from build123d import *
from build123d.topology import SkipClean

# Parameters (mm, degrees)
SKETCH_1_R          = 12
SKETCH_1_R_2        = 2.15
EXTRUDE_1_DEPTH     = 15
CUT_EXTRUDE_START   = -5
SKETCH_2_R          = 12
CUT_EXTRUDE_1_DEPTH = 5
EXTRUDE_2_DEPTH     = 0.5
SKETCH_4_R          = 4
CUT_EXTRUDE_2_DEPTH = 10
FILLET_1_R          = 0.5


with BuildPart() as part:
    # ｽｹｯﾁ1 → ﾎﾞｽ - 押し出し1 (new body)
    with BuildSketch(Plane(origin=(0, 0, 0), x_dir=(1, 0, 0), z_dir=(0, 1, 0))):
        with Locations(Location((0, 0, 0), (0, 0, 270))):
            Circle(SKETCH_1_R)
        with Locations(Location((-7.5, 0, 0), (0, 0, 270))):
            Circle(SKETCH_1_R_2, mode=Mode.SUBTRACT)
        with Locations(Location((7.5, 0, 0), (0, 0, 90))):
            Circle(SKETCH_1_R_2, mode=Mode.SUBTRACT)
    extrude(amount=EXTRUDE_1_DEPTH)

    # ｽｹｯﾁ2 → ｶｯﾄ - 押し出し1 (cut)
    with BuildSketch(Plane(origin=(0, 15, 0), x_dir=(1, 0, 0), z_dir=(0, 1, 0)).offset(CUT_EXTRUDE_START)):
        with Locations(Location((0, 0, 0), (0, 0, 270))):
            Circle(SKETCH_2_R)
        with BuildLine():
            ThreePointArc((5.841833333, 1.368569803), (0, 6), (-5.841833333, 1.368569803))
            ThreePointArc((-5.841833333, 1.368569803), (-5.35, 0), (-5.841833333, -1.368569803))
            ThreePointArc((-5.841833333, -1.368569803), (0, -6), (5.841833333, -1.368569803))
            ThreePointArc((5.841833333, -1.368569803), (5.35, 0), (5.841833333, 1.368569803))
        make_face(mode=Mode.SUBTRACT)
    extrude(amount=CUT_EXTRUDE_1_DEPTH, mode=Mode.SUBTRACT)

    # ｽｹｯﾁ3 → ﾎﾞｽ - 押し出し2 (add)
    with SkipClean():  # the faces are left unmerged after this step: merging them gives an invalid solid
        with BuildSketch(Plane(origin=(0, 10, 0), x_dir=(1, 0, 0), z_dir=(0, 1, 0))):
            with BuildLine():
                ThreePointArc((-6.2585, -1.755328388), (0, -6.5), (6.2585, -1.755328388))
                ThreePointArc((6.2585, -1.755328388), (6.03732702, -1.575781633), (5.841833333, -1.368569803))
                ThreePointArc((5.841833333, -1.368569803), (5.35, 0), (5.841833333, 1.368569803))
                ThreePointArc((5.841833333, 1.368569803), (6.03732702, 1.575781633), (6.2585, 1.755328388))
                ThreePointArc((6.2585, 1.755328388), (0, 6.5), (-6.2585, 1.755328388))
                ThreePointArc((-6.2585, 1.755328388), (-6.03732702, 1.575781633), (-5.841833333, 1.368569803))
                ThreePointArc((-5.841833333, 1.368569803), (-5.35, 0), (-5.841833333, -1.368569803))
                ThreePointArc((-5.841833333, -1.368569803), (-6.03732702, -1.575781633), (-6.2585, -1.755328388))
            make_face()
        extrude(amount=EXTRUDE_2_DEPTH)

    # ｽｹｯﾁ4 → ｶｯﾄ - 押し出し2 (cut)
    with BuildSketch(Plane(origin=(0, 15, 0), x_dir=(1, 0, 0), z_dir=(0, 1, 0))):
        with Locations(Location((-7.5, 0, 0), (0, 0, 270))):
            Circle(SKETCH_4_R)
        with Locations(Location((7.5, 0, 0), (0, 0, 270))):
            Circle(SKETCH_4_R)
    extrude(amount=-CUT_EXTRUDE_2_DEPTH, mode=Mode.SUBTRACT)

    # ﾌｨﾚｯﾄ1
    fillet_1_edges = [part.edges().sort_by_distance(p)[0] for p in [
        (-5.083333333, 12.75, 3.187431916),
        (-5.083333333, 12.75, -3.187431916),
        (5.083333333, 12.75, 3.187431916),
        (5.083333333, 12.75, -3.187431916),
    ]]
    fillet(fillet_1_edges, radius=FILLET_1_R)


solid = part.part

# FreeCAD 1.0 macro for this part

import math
import FreeCAD as App
import Part
import Sketcher

V = App.Vector
Q = App.Units.Quantity


def edges_at(feature, points):
    """Names of the edges that pass closest to the given points."""
    edges = feature.Shape.Edges
    near = lambda p: min(range(len(edges)), key=lambda i: edges[i].distToShape(Part.Vertex(*p))[0])
    return sorted({f"Edge{near(p) + 1}" for p in points})

doc = App.newDocument("Part")
body = doc.addObject("PartDesign::Body", "Body")

# Sketch on XZ plane
sketch1 = body.newObject("Sketcher::SketchObject", "Sketch")
sketch1.AttachmentSupport = (doc.getObject("XZ_Plane"), [""])
sketch1.MapMode = "FlatFace"
sketch1.addGeometry([
    Part.Circle(V(0, 0, 0), V(0, 0, 1), 12),
    Part.Circle(V(-7.5, 0, 0), V(0, 0, 1), 2.1),
    Part.Circle(V(7.5, 0, 0), V(0, 0, 1), 2.1),
], False)
sketch1.addConstraint([
    Sketcher.Constraint("Coincident", 0, 3, -1, 1),
    Sketcher.Constraint("Equal", 1, 2),
    Sketcher.Constraint("Symmetric", 1, 3, 2, 3, -1, 1),
    Sketcher.Constraint("PointOnObject", 1, 3, -1),
    Sketcher.Constraint("Diameter", 0, Q("24 mm")),
    Sketcher.Constraint("Diameter", 1, Q("4.3 mm")),
    Sketcher.Constraint("DistanceX", 1, 3, 2, 3, Q("15 mm")),
])
pad1 = body.newObject("PartDesign::Pad", "Pad")
pad1.Profile = sketch1
pad1.Length = 15
pad1.Reversed = True

# Sketch on XZ plane
sketch2 = body.newObject("Sketcher::SketchObject", "Sketch001")
sketch2.AttachmentSupport = (doc.getObject("XZ_Plane"), [""])
sketch2.MapMode = "FlatFace"
sketch2.AttachmentOffset = App.Placement(V(0, 0, -10), App.Rotation())
sketch2.addGeometry([
    Part.Circle(V(0, 0, 0), V(0, 0, 1), 12),  # 0
    Part.ArcOfCircle(Part.Circle(V(0, 0, 0), V(0, 0, 1), 6), math.radians(-167), math.radians(-13)),  # 1
    Part.ArcOfCircle(Part.Circle(V(7.5, 0, 0), V(0, 0, 1), 2.2), math.radians(140), math.radians(220)),  # 2
    Part.ArcOfCircle(Part.Circle(V(0, 0, 0), V(0, 0, 1), 6), math.radians(13), math.radians(167)),  # 3
    Part.ArcOfCircle(Part.Circle(V(-7.5, 0, 0), V(0, 0, 1), 2.2), math.radians(-40), math.radians(40)),  # 4
], False)
sketch2.addConstraint([
    Sketcher.Constraint("Coincident", 1, 2, 2, 2),
    Sketcher.Constraint("Coincident", 2, 1, 3, 1),
    Sketcher.Constraint("Coincident", 3, 2, 4, 2),
    Sketcher.Constraint("Coincident", 4, 1, 1, 1),
    Sketcher.Constraint("Coincident", 0, 3, -1, 1),
    Sketcher.Constraint("Coincident", 1, 3, -1, 1),
    Sketcher.Constraint("Coincident", 3, 3, -1, 1),
    Sketcher.Constraint("Equal", 1, 3),
    Sketcher.Constraint("Equal", 2, 4),
    Sketcher.Constraint("Symmetric", 2, 3, 4, 3, -1, 1),
    Sketcher.Constraint("PointOnObject", 2, 3, -1),
    Sketcher.Constraint("Diameter", 0, Q("24 mm")),
    Sketcher.Constraint("Radius", 1, Q("6 mm")),
    Sketcher.Constraint("Radius", 2, Q("2.15 mm")),
    Sketcher.Constraint("DistanceX", 4, 3, 2, 3, Q("15 mm")),
])
pocket1 = body.newObject("PartDesign::Pocket", "Pocket")
pocket1.Profile = sketch2
pocket1.Length = 5

# Sketch on XZ plane
sketch3 = body.newObject("Sketcher::SketchObject", "Sketch002")
sketch3.AttachmentSupport = (doc.getObject("XZ_Plane"), [""])
sketch3.MapMode = "FlatFace"
sketch3.AttachmentOffset = App.Placement(V(0, 0, -10), App.Rotation())
sketch3.addGeometry([
    Part.ArcOfCircle(Part.Circle(V(0, 0, 0), V(0, 0, 1), 6.5), math.radians(16), math.radians(164)),  # 0
    Part.ArcOfCircle(Part.Circle(V(7.5, 0, 0), V(0, 0, 1), 2.1), math.radians(125.27), math.radians(140.47)),  # 1
    Part.ArcOfCircle(Part.Circle(V(7.5, 0, 0), V(0, 0, 1), 2.2), math.radians(140), math.radians(220)),  # 2
    Part.ArcOfCircle(Part.Circle(V(7.5, 0, 0), V(0, 0, 1), 2.1), math.radians(-140.47), math.radians(-125.27)),  # 3
    Part.ArcOfCircle(Part.Circle(V(0, 0, 0), V(0, 0, 1), 6.5), math.radians(-164), math.radians(-16)),  # 4
    Part.ArcOfCircle(Part.Circle(V(-7.5, 0, 0), V(0, 0, 1), 2.1), math.radians(-54.73), math.radians(-39.53)),  # 5
    Part.ArcOfCircle(Part.Circle(V(-7.5, 0, 0), V(0, 0, 1), 2.2), math.radians(-40), math.radians(40)),  # 6
    Part.ArcOfCircle(Part.Circle(V(-7.5, 0, 0), V(0, 0, 1), 2.1), math.radians(39.53), math.radians(54.73)),  # 7
], False)
sketch3.addConstraint([
    Sketcher.Constraint("Coincident", 0, 1, 1, 1),
    Sketcher.Constraint("Tangent", 1, 2, 2, 1),
    Sketcher.Constraint("Tangent", 2, 2, 3, 1),
    Sketcher.Constraint("Coincident", 3, 2, 4, 2),
    Sketcher.Constraint("Coincident", 4, 1, 5, 1),
    Sketcher.Constraint("Tangent", 5, 2, 6, 1),
    Sketcher.Constraint("Tangent", 6, 2, 7, 1),
    Sketcher.Constraint("Coincident", 7, 2, 0, 2),
    Sketcher.Constraint("Coincident", 0, 3, -1, 1),
    Sketcher.Constraint("Coincident", 4, 3, -1, 1),
    Sketcher.Constraint("Coincident", 3, 3, 1, 3),
    Sketcher.Constraint("Coincident", 7, 3, 5, 3),
    Sketcher.Constraint("Equal", 0, 4),
    Sketcher.Constraint("Equal", 3, 5),
    Sketcher.Constraint("Symmetric", 1, 3, 5, 3, -1, 1),
    Sketcher.Constraint("Symmetric", 2, 2, 5, 2, -2),
    Sketcher.Constraint("Horizontal", 1, 2, 6, 2),
    Sketcher.Constraint("Vertical", 1, 2, 2, 2),
    Sketcher.Constraint("Radius", 0, Q("6.5 mm")),
    Sketcher.Constraint("Radius", 1, Q("2.15 mm")),
    Sketcher.Constraint("DistanceX", 5, 3, 1, 3, Q("15 mm")),
    Sketcher.Constraint("DistanceY", 2, 2, 0, 1, Q("3.123898 mm")),
])
pad2 = body.newObject("PartDesign::Pad", "Pad001")
pad2.Profile = sketch3
pad2.Length = 0.5
pad2.Reversed = True

# Sketch on XZ plane
sketch4 = body.newObject("Sketcher::SketchObject", "Sketch003")
sketch4.AttachmentSupport = (doc.getObject("XZ_Plane"), [""])
sketch4.MapMode = "FlatFace"
sketch4.AttachmentOffset = App.Placement(V(0, 0, -15), App.Rotation())
sketch4.addGeometry([
    Part.Circle(V(-7.5, 0, 0), V(0, 0, 1), 4),
    Part.Circle(V(7.5, 0, 0), V(0, 0, 1), 4),
], False)
sketch4.addConstraint([
    Sketcher.Constraint("Equal", 0, 1),
    Sketcher.Constraint("Symmetric", 0, 3, 1, 3, -1, 1),
    Sketcher.Constraint("PointOnObject", 0, 3, -1),
    Sketcher.Constraint("Diameter", 0, Q("8 mm")),
    Sketcher.Constraint("DistanceX", 0, 3, 1, 3, Q("15 mm")),
])
pocket2 = body.newObject("PartDesign::Pocket", "Pocket001")
pocket2.Profile = sketch4
pocket2.Length = 10
pocket2.Reversed = True
doc.recompute()

fillet = body.newObject("PartDesign::Fillet", "Fillet")
fillet.Base = (pocket2, edges_at(pocket2, [
    (-5.083, 12.75, 3.187),
    (-5.083, 12.75, -3.187),
    (5.083, 12.75, 3.187),
    (5.083, 12.75, -3.187),
]))
fillet.Radius = 0.5

doc.recompute()
